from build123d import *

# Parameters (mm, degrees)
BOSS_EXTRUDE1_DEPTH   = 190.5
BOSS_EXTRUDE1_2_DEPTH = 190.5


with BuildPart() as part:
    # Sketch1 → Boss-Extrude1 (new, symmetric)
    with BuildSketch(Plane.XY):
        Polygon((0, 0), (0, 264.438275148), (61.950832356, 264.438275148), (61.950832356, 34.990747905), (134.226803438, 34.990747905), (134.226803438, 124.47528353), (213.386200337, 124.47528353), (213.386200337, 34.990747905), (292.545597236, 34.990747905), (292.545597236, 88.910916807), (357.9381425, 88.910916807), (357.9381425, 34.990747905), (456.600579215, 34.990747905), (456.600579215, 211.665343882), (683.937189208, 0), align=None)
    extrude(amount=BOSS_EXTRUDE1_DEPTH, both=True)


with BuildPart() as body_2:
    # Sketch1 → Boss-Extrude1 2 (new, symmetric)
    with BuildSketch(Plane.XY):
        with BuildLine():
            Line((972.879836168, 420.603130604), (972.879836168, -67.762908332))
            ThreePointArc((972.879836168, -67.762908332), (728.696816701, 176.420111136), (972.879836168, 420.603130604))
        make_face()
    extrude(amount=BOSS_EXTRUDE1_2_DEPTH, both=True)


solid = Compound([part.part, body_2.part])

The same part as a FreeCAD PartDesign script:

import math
import FreeCAD as App
import Part
import Sketcher


def add_polygon(sketch, points):
    """Adds a closed chain of lines whose ends are joined by coincident constraints."""
    first, n = sketch.GeometryCount, len(points)
    for a, b in zip(points, points[1:] + points[:1]):
        sketch.addGeometry(Part.LineSegment(App.Vector(*a, 0), App.Vector(*b, 0)), False)
    for i in range(n):
        sketch.addConstraint(Sketcher.Constraint("Coincident", first + i, 2, first + (i + 1) % n, 1))

doc = App.newDocument("Part")
params = doc.addObject("Spreadsheet::Sheet", "Params")
for row, (alias, value) in enumerate([
    ("pad1_length", "15 in"),
    ("pad2_length", "15 in"),
], start=1):
    params.set(f"A{row}", alias)
    params.set(f"B{row}", "=" + value)
    params.setAlias(f"B{row}", alias)

body = doc.addObject("PartDesign::Body", "Body")

sketch1 = doc.addObject("Sketcher::SketchObject", "Sketch")
body.addObject(sketch1)
sketch1.AttachmentSupport = (doc.XY_Plane, [""])
sketch1.MapMode = "FlatFace"
add_polygon(sketch1, [(0, 264.438275), (0, 0), (683.937189, 0), (456.600579, 211.665344), (456.600579, 34.990748), (357.938143, 34.990748), (357.938143, 88.910917), (292.545597, 88.910917), (292.545597, 34.990748), (213.3862, 34.990748), (213.3862, 124.475284), (134.226803, 124.475284), (134.226803, 34.990748), (61.950832, 34.990748), (61.950832, 264.438275)])
sketch1.addConstraint(Sketcher.Constraint("Vertical", 0))
sketch1.addConstraint(Sketcher.Constraint("Horizontal", 1))
sketch1.addConstraint(Sketcher.Constraint("Vertical", 3))
sketch1.addConstraint(Sketcher.Constraint("Horizontal", 4))
sketch1.addConstraint(Sketcher.Constraint("Vertical", 5))
sketch1.addConstraint(Sketcher.Constraint("Horizontal", 6))
sketch1.addConstraint(Sketcher.Constraint("Vertical", 7))
sketch1.addConstraint(Sketcher.Constraint("Horizontal", 8))
sketch1.addConstraint(Sketcher.Constraint("Vertical", 9))
sketch1.addConstraint(Sketcher.Constraint("Horizontal", 10))
sketch1.addConstraint(Sketcher.Constraint("Vertical", 11))
sketch1.addConstraint(Sketcher.Constraint("Horizontal", 12))
sketch1.addConstraint(Sketcher.Constraint("Vertical", 13))
sketch1.addConstraint(Sketcher.Constraint("Horizontal", 14))
sketch1.addConstraint(Sketcher.Constraint("Coincident", 0, 2, -1, 1))
sketch1.addConstraint(Sketcher.Constraint("Horizontal", 4, 2, 7, 2))
sketch1.addConstraint(Sketcher.Constraint("Horizontal", 8, 2, 11, 2))
sketch1.addConstraint(Sketcher.Constraint("Equal", 8, 10))
sketch1.addConstraint(Sketcher.Constraint("DistanceX", 1, 1, 1, 2, 683.937189))
sketch1.addConstraint(Sketcher.Constraint("DistanceX", 12, 2, 12, 1, 72.275971))
sketch1.addConstraint(Sketcher.Constraint("DistanceY", 5, 1, 5, 2, 53.920169))
sketch1.addConstraint(Sketcher.Constraint("DistanceX", -1, 1, 8, 2, 213.3862))
sketch1.addConstraint(Sketcher.Constraint("DistanceX", 4, 2, 4, 1, 98.662437))
sketch1.addConstraint(Sketcher.Constraint("DistanceX", 6, 2, 6, 1, 65.392545))
sketch1.addConstraint(Sketcher.Constraint("DistanceX", 8, 2, 8, 1, 79.159397))
sketch1.addConstraint(Sketcher.Constraint("DistanceY", 0, 2, 0, 1, 264.438275))
sketch1.addConstraint(Sketcher.Constraint("DistanceY", 3, 2, 3, 1, 176.674596))
sketch1.addConstraint(Sketcher.Constraint("DistanceY", 9, 1, 9, 2, 89.484536))
sketch1.addConstraint(Sketcher.Constraint("DistanceY", 13, 1, 13, 2, 229.447527))
pad1 = doc.addObject("PartDesign::Pad", "Pad")
body.addObject(pad1)
pad1.Profile = sketch1
pad1.setExpression("Length", "Params.pad1_length")
pad1.Midplane = True
body2 = doc.addObject("PartDesign::Body", "Body001")

sketch2 = doc.addObject("Sketcher::SketchObject", "Sketch001")
body2.addObject(sketch2)
sketch2.AttachmentSupport = (doc.getObject("XY_Plane001"), [""])
sketch2.MapMode = "FlatFace"
sketch2.addGeometry(Part.LineSegment(App.Vector(972.879836, -67.762908, 0), App.Vector(972.879836, 420.603131, 0)), False)
sketch2.addGeometry(Part.ArcOfCircle(Part.Circle(App.Vector(972.879836, 176.420111, 0), App.Vector(0, 0, 1), 244.183019), math.radians(90), math.radians(270)), False)
sketch2.addConstraint(Sketcher.Constraint("Coincident", 0, 1, 1, 2))
sketch2.addConstraint(Sketcher.Constraint("Coincident", 1, 1, 0, 2))
sketch2.addConstraint(Sketcher.Constraint("Vertical", 0))
sketch2.addConstraint(Sketcher.Constraint("Vertical", 1, 3, 0, 1))
sketch2.addConstraint(Sketcher.Constraint("Radius", 1, 244.183019))
sketch2.addConstraint(Sketcher.Constraint("DistanceY", -1, 1, 1, 3, 176.420111))
sketch2.addConstraint(Sketcher.Constraint("DistanceX", -1, 1, 1, 3, 972.879836))
pad2 = doc.addObject("PartDesign::Pad", "Pad001")
body2.addObject(pad2)
pad2.Profile = sketch2
pad2.setExpression("Length", "Params.pad2_length")
pad2.Midplane = True

doc.recompute()
